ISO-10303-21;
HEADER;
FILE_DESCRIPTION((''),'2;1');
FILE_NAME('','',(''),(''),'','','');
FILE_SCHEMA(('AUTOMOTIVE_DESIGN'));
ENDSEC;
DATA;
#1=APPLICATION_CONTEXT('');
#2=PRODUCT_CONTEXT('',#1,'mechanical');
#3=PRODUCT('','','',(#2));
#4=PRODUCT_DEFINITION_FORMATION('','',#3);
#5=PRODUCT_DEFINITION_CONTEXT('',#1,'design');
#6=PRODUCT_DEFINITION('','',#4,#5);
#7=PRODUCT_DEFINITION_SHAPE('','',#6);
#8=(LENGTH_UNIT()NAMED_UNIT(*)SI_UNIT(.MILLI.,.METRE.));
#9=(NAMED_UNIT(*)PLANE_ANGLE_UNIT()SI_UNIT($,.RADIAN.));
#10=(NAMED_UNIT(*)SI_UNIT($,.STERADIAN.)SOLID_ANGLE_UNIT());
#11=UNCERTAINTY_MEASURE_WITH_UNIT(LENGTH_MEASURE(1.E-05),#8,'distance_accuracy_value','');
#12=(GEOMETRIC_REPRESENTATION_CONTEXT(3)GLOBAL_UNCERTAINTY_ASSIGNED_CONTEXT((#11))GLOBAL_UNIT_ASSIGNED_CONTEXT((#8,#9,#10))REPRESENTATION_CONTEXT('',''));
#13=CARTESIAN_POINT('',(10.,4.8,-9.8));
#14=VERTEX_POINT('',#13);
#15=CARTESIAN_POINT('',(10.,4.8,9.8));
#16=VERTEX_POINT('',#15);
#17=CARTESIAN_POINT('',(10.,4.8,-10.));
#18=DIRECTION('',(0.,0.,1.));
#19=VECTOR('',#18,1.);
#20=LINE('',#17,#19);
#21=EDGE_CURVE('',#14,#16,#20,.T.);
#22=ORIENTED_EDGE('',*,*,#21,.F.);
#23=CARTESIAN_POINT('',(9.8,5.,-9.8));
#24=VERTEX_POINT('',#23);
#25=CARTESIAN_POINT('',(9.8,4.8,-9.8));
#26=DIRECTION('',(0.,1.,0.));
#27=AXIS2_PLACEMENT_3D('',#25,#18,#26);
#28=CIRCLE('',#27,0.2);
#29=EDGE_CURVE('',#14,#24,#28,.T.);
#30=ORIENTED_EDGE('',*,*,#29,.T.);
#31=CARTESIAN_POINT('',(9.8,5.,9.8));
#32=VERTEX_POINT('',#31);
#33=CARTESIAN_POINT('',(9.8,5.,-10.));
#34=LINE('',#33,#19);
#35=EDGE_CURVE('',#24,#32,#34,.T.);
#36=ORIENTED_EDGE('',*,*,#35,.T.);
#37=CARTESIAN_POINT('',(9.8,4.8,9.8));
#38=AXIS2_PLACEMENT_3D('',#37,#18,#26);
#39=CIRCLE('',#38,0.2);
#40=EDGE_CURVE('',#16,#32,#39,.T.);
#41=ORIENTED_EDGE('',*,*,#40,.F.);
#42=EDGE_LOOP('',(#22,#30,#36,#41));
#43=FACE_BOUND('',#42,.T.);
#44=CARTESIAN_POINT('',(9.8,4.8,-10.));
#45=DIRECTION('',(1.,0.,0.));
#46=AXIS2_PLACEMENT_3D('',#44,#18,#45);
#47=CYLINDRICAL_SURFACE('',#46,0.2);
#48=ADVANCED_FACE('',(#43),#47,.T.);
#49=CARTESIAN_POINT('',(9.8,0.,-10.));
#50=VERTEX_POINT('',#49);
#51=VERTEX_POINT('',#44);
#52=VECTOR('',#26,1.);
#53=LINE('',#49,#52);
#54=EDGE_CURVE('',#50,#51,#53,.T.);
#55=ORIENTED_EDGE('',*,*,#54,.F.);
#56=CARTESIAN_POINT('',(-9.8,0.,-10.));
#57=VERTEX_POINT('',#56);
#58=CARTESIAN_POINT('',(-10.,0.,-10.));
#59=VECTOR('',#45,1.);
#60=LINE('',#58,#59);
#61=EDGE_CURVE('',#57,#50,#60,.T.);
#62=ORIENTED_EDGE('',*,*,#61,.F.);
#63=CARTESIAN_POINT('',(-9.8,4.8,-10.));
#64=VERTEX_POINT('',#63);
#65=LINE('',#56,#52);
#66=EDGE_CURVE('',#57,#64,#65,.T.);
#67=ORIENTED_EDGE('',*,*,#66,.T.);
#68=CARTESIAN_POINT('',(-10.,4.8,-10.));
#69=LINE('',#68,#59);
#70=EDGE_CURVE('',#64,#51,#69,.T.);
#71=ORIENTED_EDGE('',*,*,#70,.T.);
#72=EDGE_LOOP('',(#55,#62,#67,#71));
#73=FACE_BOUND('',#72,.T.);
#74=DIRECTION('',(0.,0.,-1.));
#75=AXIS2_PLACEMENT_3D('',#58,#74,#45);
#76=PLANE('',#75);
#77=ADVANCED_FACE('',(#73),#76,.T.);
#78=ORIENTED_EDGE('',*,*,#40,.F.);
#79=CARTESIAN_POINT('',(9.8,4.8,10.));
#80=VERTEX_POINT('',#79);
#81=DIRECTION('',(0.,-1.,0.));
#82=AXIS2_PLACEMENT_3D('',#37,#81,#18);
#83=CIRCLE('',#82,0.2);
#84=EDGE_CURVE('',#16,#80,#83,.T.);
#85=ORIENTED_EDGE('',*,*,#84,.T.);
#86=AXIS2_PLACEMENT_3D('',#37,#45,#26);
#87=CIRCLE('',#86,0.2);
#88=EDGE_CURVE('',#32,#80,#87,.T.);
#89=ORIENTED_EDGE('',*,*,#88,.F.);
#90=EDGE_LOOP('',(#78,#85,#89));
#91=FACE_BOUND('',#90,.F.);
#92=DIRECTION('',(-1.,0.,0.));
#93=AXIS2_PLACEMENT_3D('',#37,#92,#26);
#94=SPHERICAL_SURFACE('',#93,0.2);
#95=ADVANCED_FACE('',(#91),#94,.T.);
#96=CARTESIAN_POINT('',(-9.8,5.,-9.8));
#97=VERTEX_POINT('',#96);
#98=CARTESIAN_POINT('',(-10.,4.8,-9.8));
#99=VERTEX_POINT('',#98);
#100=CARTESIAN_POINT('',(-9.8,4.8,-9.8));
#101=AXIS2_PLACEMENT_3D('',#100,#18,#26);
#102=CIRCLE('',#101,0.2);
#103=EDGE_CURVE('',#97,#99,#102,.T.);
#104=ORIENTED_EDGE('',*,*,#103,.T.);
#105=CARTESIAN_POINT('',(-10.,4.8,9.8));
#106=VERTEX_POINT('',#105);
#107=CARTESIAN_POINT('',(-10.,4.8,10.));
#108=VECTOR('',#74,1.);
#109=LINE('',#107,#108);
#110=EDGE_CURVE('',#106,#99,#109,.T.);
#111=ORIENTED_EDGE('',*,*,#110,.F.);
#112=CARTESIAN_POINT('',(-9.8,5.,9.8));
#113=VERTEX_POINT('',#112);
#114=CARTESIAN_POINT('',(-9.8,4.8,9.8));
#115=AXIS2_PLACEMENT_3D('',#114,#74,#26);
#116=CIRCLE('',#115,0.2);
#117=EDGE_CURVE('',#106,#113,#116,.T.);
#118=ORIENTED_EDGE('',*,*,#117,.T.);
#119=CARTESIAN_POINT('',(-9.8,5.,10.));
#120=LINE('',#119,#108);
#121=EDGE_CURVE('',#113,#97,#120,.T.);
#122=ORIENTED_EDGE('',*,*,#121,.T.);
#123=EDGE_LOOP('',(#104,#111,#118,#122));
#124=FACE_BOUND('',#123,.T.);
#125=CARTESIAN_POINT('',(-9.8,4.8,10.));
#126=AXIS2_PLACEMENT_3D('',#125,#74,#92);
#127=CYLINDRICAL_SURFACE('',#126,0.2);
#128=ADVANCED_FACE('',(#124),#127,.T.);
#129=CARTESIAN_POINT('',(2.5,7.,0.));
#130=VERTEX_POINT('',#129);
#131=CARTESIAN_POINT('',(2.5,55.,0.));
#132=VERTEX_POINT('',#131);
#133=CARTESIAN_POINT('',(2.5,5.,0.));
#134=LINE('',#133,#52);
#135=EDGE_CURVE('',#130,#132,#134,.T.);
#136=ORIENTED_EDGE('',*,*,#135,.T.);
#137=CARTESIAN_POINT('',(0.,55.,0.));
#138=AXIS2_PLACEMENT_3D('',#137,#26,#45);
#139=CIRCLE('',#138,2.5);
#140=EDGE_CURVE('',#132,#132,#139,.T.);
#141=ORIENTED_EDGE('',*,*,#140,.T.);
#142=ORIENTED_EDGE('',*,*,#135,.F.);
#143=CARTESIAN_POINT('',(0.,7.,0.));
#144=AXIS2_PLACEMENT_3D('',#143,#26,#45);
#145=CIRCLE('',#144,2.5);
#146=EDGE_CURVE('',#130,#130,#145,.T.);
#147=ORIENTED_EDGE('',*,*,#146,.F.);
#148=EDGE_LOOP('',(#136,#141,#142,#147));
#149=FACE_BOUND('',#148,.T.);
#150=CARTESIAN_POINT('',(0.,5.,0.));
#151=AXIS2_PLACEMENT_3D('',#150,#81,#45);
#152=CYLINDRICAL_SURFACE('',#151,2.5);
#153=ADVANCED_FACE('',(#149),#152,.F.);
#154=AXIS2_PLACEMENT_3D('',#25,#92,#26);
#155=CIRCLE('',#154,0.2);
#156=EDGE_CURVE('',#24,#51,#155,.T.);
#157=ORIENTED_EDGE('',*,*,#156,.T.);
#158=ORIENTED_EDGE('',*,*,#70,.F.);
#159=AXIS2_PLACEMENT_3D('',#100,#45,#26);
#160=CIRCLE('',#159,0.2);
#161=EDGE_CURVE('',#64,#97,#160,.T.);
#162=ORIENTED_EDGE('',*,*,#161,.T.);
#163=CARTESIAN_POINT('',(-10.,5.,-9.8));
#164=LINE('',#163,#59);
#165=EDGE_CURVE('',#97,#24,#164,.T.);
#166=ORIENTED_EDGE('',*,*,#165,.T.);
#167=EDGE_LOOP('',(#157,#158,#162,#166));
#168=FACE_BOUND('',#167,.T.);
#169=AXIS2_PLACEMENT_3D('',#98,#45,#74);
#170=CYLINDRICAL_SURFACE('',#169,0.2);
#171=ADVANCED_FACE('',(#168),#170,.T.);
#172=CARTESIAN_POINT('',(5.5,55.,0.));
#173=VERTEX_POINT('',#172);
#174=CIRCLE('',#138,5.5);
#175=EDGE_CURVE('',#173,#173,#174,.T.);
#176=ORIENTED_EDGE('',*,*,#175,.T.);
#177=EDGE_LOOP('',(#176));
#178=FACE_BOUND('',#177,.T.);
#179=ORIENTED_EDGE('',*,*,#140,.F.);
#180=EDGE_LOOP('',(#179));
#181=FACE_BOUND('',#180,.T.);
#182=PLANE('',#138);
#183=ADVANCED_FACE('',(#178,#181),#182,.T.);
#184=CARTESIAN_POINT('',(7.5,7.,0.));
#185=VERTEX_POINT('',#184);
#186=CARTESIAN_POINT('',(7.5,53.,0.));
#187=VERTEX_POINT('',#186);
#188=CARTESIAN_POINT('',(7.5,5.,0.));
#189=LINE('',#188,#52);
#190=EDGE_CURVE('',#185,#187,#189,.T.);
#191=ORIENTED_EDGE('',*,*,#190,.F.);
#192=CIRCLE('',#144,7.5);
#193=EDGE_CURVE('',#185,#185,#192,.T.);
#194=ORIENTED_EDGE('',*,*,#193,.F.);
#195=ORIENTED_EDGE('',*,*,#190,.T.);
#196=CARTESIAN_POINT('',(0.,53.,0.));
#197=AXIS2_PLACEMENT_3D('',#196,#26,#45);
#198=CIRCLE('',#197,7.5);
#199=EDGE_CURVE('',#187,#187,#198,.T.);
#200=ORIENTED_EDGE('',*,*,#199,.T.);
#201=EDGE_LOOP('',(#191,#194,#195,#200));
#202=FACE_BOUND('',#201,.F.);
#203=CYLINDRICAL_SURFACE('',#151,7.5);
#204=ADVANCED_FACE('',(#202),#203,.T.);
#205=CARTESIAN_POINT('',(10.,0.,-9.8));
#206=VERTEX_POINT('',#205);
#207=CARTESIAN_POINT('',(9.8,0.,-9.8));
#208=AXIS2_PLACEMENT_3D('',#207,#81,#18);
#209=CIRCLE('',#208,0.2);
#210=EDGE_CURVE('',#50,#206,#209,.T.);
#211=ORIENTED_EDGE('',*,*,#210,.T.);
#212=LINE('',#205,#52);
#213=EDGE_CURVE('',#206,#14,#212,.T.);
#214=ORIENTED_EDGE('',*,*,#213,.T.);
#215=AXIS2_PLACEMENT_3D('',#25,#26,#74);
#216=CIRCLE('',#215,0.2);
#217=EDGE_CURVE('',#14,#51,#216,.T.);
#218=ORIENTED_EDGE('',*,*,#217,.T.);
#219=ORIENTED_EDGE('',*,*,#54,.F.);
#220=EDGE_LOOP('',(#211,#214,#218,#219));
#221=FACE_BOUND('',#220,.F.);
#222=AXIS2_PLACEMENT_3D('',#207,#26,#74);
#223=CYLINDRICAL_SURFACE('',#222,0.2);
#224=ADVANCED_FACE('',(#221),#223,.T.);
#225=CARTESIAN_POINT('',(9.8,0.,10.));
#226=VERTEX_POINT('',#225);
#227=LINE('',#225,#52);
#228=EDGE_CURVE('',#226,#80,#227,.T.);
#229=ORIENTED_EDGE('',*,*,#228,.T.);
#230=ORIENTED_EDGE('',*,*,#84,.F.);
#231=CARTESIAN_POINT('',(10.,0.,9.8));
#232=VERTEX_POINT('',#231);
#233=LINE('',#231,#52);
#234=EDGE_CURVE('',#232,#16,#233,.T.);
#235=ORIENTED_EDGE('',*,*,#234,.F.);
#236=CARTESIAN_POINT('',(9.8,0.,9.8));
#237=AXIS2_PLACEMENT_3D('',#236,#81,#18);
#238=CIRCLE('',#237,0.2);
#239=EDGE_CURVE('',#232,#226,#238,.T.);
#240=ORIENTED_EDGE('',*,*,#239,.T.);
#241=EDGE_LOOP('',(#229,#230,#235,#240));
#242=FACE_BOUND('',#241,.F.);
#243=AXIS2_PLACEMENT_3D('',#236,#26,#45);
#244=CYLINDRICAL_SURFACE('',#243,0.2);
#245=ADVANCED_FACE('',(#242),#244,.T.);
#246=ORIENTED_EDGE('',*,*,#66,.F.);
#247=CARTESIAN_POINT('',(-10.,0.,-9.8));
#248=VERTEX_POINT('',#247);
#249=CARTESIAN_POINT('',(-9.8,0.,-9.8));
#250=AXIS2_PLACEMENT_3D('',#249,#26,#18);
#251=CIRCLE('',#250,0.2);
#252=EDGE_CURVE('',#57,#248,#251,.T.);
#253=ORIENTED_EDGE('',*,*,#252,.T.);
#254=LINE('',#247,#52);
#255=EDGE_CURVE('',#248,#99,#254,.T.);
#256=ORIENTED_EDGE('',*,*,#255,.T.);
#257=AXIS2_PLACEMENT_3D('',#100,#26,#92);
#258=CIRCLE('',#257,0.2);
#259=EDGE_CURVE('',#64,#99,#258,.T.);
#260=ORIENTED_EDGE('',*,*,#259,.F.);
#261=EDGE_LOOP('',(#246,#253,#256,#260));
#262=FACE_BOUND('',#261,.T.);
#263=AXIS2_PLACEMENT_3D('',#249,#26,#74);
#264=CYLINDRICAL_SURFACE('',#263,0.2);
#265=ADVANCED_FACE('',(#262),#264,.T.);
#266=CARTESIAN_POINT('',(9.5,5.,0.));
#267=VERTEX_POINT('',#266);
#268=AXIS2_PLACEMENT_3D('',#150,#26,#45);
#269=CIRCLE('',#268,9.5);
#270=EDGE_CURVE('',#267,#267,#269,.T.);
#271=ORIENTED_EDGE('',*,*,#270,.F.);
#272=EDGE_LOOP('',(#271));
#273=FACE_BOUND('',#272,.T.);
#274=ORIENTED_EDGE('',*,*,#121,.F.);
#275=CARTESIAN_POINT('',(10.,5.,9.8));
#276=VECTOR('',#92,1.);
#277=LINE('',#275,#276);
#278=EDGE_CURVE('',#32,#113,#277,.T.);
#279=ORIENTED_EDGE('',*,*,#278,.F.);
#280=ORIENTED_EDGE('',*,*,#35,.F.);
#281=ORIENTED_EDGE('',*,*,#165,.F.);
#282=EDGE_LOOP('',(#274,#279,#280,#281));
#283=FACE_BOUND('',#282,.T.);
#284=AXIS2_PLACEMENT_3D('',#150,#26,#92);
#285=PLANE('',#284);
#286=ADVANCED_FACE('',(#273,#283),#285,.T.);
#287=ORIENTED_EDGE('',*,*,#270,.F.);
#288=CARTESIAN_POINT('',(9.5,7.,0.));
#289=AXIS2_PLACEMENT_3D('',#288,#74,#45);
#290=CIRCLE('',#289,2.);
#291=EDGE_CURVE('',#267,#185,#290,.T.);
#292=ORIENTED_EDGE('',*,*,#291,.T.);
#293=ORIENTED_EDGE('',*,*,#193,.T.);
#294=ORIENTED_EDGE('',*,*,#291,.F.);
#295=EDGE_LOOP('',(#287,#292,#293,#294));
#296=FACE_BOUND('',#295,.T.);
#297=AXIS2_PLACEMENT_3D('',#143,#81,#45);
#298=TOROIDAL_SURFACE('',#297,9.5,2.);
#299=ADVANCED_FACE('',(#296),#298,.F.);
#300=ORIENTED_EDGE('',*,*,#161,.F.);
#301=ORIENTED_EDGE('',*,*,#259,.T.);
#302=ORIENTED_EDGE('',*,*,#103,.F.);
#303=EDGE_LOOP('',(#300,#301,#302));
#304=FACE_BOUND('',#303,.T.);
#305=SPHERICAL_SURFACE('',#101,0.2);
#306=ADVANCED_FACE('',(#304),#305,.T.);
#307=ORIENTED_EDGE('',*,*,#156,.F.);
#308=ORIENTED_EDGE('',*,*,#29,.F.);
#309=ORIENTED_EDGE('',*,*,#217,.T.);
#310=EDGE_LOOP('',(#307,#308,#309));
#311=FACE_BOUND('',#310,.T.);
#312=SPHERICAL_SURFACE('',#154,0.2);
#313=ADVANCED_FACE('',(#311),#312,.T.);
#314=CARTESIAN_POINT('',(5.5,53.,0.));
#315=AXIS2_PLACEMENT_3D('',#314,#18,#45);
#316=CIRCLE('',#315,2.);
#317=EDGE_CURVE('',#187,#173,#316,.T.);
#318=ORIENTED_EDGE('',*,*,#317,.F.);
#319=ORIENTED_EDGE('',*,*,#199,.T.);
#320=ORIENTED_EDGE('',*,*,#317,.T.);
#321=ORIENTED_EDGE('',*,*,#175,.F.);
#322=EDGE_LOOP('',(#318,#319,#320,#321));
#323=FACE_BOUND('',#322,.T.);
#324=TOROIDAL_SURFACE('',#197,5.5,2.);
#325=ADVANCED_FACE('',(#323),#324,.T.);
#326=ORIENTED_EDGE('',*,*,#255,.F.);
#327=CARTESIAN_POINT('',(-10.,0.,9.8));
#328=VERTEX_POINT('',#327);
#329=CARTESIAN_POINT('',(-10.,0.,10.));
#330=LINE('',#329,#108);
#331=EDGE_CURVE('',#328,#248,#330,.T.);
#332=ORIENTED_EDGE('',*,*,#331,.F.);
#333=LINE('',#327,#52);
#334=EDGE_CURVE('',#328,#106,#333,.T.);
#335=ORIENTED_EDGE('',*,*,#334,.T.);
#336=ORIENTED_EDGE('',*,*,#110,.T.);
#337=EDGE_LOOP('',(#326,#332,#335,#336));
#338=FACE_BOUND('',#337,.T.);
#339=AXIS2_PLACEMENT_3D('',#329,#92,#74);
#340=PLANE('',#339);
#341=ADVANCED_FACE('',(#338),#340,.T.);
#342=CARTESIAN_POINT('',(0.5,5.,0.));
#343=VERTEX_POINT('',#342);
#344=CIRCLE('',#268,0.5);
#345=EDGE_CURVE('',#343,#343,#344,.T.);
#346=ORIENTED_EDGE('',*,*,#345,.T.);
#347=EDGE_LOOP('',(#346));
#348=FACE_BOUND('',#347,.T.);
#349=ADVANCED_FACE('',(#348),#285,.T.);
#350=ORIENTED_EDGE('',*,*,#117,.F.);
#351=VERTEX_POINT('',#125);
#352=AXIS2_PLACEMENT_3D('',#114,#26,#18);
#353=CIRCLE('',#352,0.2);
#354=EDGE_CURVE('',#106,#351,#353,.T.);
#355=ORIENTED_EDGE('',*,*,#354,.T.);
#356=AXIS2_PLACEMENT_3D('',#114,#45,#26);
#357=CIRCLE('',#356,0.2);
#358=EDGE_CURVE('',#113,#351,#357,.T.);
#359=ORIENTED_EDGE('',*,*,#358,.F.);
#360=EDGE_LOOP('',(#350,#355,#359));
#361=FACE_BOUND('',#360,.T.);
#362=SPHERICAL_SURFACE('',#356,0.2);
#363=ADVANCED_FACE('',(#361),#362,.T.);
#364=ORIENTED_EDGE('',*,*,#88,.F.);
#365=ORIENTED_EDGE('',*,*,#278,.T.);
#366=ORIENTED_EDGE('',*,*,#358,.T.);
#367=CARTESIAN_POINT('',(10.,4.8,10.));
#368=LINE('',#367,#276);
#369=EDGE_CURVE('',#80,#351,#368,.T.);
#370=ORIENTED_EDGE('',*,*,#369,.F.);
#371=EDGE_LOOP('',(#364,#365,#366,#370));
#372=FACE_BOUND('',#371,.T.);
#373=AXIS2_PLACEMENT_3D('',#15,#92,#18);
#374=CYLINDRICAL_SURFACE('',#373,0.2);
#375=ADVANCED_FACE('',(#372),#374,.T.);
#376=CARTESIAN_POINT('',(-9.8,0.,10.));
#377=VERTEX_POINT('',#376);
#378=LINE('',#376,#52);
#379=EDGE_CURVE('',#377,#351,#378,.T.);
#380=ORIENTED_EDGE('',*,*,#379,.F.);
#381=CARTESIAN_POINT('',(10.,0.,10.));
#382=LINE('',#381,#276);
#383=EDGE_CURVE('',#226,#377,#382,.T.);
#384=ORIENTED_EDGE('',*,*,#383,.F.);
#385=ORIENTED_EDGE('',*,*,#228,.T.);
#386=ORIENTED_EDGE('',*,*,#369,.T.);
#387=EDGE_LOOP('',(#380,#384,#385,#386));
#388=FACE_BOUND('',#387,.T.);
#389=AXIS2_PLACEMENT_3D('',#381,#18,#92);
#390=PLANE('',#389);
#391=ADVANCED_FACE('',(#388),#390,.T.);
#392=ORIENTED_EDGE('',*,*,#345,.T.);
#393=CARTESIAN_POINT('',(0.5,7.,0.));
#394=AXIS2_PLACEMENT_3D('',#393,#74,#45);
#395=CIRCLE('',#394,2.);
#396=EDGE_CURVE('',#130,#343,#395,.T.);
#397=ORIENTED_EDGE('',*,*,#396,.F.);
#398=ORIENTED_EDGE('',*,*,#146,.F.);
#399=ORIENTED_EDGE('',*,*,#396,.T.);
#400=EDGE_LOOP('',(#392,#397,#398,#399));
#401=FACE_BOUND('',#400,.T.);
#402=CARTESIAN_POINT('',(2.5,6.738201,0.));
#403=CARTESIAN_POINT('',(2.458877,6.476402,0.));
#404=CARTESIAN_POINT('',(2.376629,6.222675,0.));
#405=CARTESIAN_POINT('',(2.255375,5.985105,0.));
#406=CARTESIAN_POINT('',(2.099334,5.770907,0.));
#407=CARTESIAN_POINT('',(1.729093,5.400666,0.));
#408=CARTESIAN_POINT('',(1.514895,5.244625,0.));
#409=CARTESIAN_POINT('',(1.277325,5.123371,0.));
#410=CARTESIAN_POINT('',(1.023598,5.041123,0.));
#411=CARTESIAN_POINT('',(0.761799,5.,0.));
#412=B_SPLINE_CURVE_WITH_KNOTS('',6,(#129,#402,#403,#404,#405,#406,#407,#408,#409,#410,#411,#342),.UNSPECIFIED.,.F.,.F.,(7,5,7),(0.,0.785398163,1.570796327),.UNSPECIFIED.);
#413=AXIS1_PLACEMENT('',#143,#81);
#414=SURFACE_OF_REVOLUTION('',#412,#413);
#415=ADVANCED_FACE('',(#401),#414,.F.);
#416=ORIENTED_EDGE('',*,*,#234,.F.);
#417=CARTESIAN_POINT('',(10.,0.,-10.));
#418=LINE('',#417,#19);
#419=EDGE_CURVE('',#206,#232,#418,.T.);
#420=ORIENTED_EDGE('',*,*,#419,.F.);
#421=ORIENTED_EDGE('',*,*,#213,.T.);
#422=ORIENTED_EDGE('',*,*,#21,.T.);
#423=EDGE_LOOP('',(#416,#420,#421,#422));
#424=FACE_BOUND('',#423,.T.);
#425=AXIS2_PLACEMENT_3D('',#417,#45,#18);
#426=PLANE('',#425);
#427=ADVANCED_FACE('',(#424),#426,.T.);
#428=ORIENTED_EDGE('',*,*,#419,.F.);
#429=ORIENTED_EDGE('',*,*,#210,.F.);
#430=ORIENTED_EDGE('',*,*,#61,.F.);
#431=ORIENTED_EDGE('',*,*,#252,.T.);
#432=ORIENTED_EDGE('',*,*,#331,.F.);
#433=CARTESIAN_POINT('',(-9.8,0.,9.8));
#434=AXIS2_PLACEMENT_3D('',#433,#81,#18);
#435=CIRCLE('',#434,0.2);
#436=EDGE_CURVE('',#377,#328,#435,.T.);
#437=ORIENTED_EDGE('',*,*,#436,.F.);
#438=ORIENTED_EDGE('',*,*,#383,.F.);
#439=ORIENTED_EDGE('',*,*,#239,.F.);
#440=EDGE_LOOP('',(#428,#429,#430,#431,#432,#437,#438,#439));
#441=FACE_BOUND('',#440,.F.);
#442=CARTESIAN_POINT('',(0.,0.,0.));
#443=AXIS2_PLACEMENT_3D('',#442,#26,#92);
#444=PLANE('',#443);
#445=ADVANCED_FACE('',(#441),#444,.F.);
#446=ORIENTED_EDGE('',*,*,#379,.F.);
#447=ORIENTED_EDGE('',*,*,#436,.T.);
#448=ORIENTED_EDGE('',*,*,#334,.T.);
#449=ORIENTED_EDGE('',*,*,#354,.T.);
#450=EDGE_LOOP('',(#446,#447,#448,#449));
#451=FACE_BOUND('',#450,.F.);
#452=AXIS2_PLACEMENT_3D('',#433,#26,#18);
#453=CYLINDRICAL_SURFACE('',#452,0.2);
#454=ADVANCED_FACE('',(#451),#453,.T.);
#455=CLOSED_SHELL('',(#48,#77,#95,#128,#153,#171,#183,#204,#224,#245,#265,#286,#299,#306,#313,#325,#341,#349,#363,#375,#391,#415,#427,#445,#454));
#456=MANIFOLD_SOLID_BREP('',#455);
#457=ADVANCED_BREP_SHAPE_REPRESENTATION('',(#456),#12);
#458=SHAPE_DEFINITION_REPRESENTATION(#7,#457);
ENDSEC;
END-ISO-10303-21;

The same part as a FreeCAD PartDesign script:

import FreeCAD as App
import Part
import Sketcher
from FreeCAD import Vector


def edges_at(feature, points):
    """Names of the edges that pass closest to the given points."""
    edges = feature.Shape.Edges
    near = lambda p: min(range(len(edges)), key=lambda i: edges[i].distToShape(Part.Vertex(*p))[0])
    return sorted({f"Edge{near(p) + 1}" for p in points})


def add_polygon(sketch, points):
    """Adds a closed chain of lines whose ends are joined by coincident constraints."""
    first, n = sketch.GeometryCount, len(points)
    for a, b in zip(points, points[1:] + points[:1]):
        sketch.addGeometry(Part.LineSegment(App.Vector(*a, 0), App.Vector(*b, 0)), False)
    for i in range(n):
        sketch.addConstraint(Sketcher.Constraint("Coincident", first + i, 2, first + (i + 1) % n, 1))

doc = App.newDocument("Part")
body = doc.addObject("PartDesign::Body", "Body")

# Sketch on XZ plane
sketch1 = body.newObject("Sketcher::SketchObject", "Sketch")
sketch1.AttachmentSupport = (doc.getObject("XZ_Plane"), [""])
sketch1.MapMode = "FlatFace"
add_polygon(sketch1, [(10, -10), (-10, -10), (-10, 10), (10, 10)])  # lines 0-3
sketch1.addConstraint([
    Sketcher.Constraint("Horizontal", 0),
    Sketcher.Constraint("Vertical", 1),
    Sketcher.Constraint("Horizontal", 2),
    Sketcher.Constraint("Vertical", 3),
    Sketcher.Constraint("Symmetric", 0, 2, 2, 2, -1, 1),
    Sketcher.Constraint("Equal", 2, 1),
    Sketcher.Constraint("DistanceX", 0, 2, 0, 1, 20.0),
])
pad1 = body.newObject("PartDesign::Pad", "Pad")
pad1.Profile = sketch1
pad1.Length = 5
pad1.Reversed = True
doc.recompute()

fillet = body.newObject("PartDesign::Fillet", "Fillet")
fillet.Base = (pad1, edges_at(pad1, [
    (0, 5, 10),
    (-10, 5, 0),
    (0, 5, -10),
    (10, 5, 0),
    (10, 2.5, 10),
    (-10, 2.5, 10),
    (-10, 2.5, -10),
    (10, 2.5, -10),
]))
fillet.Radius = 0.2

# Sketch on XZ plane
sketch2 = body.newObject("Sketcher::SketchObject", "Sketch001")
sketch2.AttachmentSupport = (doc.getObject("XZ_Plane"), [""])
sketch2.MapMode = "FlatFace"
sketch2.AttachmentOffset = App.Placement(Vector(0, 0, -5), App.Rotation())
sketch2.addGeometry([
    Part.Circle(Vector(0, 0, 0), Vector(0, 0, 1), 7.5),
    Part.Circle(Vector(0, 0, 0), Vector(0, 0, 1), 2.5),
], False)
sketch2.addConstraint([
    Sketcher.Constraint("Coincident", 0, 3, -1, 1),
    Sketcher.Constraint("Coincident", 1, 3, -1, 1),
    Sketcher.Constraint("Diameter", 0, 15.0),
    Sketcher.Constraint("Diameter", 1, 5.0),
])
pad2 = body.newObject("PartDesign::Pad", "Pad001")
pad2.Profile = sketch2
pad2.Length = 50
pad2.Reversed = True
doc.recompute()

fillet2 = body.newObject("PartDesign::Fillet", "Fillet001")
fillet2.Base = (pad2, edges_at(pad2, [(-7.5, 55, 0), (-7.5, 5, 0), (-2.5, 5, 0)]))
fillet2.Radius = 2

doc.recompute()
